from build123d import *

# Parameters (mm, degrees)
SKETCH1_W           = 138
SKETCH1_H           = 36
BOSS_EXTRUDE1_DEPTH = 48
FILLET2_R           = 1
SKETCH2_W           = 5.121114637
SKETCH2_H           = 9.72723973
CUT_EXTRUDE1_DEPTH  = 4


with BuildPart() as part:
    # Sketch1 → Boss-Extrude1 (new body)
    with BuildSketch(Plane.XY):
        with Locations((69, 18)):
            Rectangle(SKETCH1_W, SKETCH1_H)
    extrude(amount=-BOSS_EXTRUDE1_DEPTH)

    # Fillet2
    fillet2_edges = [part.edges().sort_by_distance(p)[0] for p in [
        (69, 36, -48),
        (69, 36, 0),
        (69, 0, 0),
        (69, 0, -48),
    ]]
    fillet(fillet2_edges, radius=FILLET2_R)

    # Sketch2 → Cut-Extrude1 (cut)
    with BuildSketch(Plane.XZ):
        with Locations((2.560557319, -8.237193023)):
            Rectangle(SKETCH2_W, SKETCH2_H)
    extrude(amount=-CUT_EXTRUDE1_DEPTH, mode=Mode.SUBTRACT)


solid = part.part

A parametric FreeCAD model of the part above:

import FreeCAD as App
import Part
import Sketcher
Q = App.Units.Quantity


def edges_at(feature, points):
    """Names of the edges that pass closest to the given points."""
    edges = feature.Shape.Edges
    near = lambda p: min(range(len(edges)), key=lambda i: edges[i].distToShape(Part.Vertex(*p))[0])
    return sorted({f"Edge{near(p) + 1}" for p in points})

doc = App.newDocument("Part")
params = doc.addObject("Spreadsheet::Sheet", "Params")
for row, (alias, value) in enumerate([
    ("sketch1_width", "138 mm"),
    ("sketch1_height", "36 mm"),
    ("pad1_length", "48 mm"),
    ("fillet_radius", "1 mm"),
    ("pocket1_length", "4 mm"),
], start=1):
    params.set(f"A{row}", alias)
    params.set(f"B{row}", "=" + value)
    params.setAlias(f"B{row}", alias)

body = doc.addObject("PartDesign::Body", "Body")

sketch1 = doc.addObject("Sketcher::SketchObject", "Sketch")
body.addObject(sketch1)
sketch1.AttachmentSupport = (doc.XY_Plane, [""])
sketch1.MapMode = "FlatFace"
sketch1.addGeometry([
    Part.LineSegment(App.Vector(0, 36, 0), App.Vector(0, 0, 0)),
    Part.LineSegment(App.Vector(0, 0, 0), App.Vector(138, 0, 0)),
    Part.LineSegment(App.Vector(138, 0, 0), App.Vector(138, 36, 0)),
    Part.LineSegment(App.Vector(138, 36, 0), App.Vector(0, 36, 0)),
], False)
sketch1.addConstraint([
    Sketcher.Constraint("Coincident", 0, 2, 1, 1),
    Sketcher.Constraint("Coincident", 1, 2, 2, 1),
    Sketcher.Constraint("Coincident", 2, 2, 3, 1),
    Sketcher.Constraint("Coincident", 3, 2, 0, 1),
    Sketcher.Constraint("Vertical", 0),
    Sketcher.Constraint("Horizontal", 1),
    Sketcher.Constraint("Vertical", 2),
    Sketcher.Constraint("Horizontal", 3),
    Sketcher.Constraint("Coincident", 0, 2, -1, 1),
    Sketcher.Constraint("DistanceX", 1, 1, 1, 2, Q("138 mm")),
    Sketcher.Constraint("DistanceY", 0, 2, 0, 1, Q("36 mm")),
])
sketch1.setExpression("Constraints[9]", "Params.sketch1_width")
sketch1.setExpression("Constraints[10]", "Params.sketch1_height")
pad1 = doc.addObject("PartDesign::Pad", "Pad")
body.addObject(pad1)
pad1.Profile = sketch1
pad1.setExpression("Length", "Params.pad1_length")
pad1.Reversed = True
doc.recompute()

fillet = doc.addObject("PartDesign::Fillet", "Fillet")
body.addObject(fillet)
fillet.Base = (pad1, edges_at(pad1, [
    (69, 36, -48),
    (69, 36, 0),
    (69, 0, 0),
    (69, 0, -48),
]))
fillet.setExpression("Radius", "Params.fillet_radius")

sketch2 = doc.addObject("Sketcher::SketchObject", "Sketch001")
body.addObject(sketch2)
sketch2.AttachmentSupport = (doc.XZ_Plane, [""])
sketch2.MapMode = "FlatFace"
sketch2.addGeometry([
    Part.LineSegment(App.Vector(0, -3, 0), App.Vector(0, -13, 0)),
    Part.LineSegment(App.Vector(0, -13, 0), App.Vector(5, -13, 0)),
    Part.LineSegment(App.Vector(5, -13, 0), App.Vector(5, -3, 0)),
    Part.LineSegment(App.Vector(5, -3, 0), App.Vector(0, -3, 0)),
], False)
sketch2.addConstraint([
    Sketcher.Constraint("Coincident", 0, 2, 1, 1),
    Sketcher.Constraint("Coincident", 1, 2, 2, 1),
    Sketcher.Constraint("Coincident", 2, 2, 3, 1),
    Sketcher.Constraint("Coincident", 3, 2, 0, 1),
    Sketcher.Constraint("Vertical", 0),
    Sketcher.Constraint("Horizontal", 1),
    Sketcher.Constraint("Vertical", 2),
    Sketcher.Constraint("Horizontal", 3),
    Sketcher.Constraint("PointOnObject", 0, 2, -2),
    Sketcher.Constraint("DistanceY", 0, 2, 0, 1, Q("9.72724 mm")),
    Sketcher.Constraint("DistanceX", 1, 1, 1, 2, Q("5.121115 mm")),
    Sketcher.Constraint("DistanceY", 0, 2, -1, 1, Q("13.100813 mm")),
])
pocket1 = doc.addObject("PartDesign::Pocket", "Pocket")
body.addObject(pocket1)
pocket1.Profile = sketch2
pocket1.setExpression("Length", "Params.pocket1_length")

doc.recompute()
